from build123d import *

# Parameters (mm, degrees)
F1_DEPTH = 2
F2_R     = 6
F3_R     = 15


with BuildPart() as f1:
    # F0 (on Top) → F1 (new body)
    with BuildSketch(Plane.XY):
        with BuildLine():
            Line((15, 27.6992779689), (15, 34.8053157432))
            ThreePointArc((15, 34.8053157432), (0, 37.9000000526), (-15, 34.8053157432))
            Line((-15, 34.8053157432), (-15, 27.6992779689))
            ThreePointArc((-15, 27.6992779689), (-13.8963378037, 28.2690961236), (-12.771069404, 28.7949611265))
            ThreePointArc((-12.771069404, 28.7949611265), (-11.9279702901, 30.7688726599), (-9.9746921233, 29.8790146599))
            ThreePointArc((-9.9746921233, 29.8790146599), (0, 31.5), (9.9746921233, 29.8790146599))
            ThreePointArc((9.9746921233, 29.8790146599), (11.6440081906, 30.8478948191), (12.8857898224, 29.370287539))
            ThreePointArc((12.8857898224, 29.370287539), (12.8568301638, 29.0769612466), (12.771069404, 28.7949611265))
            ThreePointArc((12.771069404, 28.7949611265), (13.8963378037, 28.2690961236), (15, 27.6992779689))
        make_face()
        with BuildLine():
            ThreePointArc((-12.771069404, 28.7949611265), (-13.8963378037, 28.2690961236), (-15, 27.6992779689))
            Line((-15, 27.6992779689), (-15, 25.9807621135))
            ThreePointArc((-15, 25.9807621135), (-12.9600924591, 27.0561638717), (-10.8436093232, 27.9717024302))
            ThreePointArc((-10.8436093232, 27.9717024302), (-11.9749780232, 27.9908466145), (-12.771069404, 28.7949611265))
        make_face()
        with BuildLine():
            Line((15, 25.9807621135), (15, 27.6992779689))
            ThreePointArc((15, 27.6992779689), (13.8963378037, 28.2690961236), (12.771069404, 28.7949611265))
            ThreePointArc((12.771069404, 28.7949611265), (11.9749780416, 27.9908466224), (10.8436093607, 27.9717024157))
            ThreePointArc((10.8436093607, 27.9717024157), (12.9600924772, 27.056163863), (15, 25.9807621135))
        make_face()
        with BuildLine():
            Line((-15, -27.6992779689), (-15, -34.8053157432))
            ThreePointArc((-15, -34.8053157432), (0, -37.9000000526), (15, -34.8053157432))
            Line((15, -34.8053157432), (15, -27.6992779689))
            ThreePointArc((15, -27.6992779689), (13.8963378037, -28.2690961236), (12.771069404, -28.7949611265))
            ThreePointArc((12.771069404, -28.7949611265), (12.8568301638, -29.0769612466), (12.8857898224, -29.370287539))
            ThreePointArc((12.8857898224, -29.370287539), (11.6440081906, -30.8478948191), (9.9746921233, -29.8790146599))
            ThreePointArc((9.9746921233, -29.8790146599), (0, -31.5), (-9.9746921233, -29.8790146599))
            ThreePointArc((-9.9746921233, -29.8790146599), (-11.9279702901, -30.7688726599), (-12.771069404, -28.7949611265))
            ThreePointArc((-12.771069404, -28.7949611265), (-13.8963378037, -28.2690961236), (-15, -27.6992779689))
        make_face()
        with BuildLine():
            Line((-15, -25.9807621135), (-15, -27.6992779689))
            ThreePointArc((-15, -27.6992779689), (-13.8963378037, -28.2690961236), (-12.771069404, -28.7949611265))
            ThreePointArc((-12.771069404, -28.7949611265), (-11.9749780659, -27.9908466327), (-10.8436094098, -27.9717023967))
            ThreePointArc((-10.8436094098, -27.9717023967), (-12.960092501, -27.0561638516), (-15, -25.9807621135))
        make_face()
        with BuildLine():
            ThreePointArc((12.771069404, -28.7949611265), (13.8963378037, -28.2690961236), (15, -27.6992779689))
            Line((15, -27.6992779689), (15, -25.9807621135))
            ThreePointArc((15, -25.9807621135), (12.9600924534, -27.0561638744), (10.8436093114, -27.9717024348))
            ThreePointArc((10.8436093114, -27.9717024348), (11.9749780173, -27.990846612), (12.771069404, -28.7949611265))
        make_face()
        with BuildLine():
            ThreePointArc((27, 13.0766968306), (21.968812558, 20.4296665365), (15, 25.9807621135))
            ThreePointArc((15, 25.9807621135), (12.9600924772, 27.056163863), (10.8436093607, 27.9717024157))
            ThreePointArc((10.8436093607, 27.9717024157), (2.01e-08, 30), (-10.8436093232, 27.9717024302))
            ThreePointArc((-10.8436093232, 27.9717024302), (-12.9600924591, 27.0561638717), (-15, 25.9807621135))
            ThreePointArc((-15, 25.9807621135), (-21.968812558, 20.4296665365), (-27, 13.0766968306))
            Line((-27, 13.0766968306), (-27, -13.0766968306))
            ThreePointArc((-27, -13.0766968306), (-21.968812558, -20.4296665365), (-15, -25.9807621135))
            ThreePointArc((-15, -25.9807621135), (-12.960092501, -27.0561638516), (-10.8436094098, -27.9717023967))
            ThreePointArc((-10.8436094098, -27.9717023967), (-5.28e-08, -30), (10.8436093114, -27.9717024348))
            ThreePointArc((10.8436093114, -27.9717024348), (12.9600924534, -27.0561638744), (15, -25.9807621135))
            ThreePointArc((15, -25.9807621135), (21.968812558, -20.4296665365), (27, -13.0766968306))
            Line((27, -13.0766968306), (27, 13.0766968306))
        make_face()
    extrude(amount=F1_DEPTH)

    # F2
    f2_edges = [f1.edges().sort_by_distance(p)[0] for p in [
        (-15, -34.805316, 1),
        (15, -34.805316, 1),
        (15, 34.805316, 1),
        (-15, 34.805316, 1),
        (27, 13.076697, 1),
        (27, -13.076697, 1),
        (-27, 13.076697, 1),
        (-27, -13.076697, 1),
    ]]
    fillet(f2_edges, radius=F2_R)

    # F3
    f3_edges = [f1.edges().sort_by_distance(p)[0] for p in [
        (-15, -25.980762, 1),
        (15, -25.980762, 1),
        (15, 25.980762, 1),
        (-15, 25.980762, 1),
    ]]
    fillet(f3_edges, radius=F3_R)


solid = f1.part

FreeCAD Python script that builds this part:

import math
import FreeCAD as App
import Part
import Sketcher
from FreeCAD import Vector


def edges_at(feature, points):
    """Names of the edges that pass closest to the given points."""
    edges = feature.Shape.Edges
    near = lambda p: min(range(len(edges)), key=lambda i: edges[i].distToShape(Part.Vertex(*p))[0])
    return sorted({f"Edge{near(p) + 1}" for p in points})

doc = App.newDocument("Part")
body = doc.addObject("PartDesign::Body", "Body")

sketch1 = body.newObject("Sketcher::SketchObject", "Sketch")
sketch1.AttachmentSupport = (doc.getObject("XY_Plane"), [""])
sketch1.MapMode = "FlatFace"
sketch1.addGeometry([
    Part.ArcOfCircle(Part.Circle(Vector(0, 0, 0), Vector(0, 0, 1), 37.9), math.radians(67), math.radians(113)),
    Part.LineSegment(Vector(-15, 34.8, 0), Vector(-15, 26, 0)),
    Part.ArcOfCircle(Part.Circle(Vector(0, 0, 0), Vector(0, 0, 1), 30), math.radians(120), math.radians(154)),
    Part.LineSegment(Vector(-27, 13.1, 0), Vector(-27, -13.1, 0)),
    Part.ArcOfCircle(Part.Circle(Vector(0, 0, 0), Vector(0, 0, 1), 30), math.radians(-154), math.radians(-120)),
    Part.LineSegment(Vector(-15, -26, 0), Vector(-15, -34.8, 0)),
    Part.ArcOfCircle(Part.Circle(Vector(0, 0, 0), Vector(0, 0, 1), 37.9), math.radians(-113), math.radians(-67)),
    Part.LineSegment(Vector(15, -34.8, 0), Vector(15, -26, 0)),
    Part.ArcOfCircle(Part.Circle(Vector(0, 0, 0), Vector(0, 0, 1), 30), math.radians(-60), math.radians(-26)),
    Part.LineSegment(Vector(27, -13.1, 0), Vector(27, 13.1, 0)),
    Part.ArcOfCircle(Part.Circle(Vector(0, 0, 0), Vector(0, 0, 1), 30), math.radians(26), math.radians(60)),
    Part.LineSegment(Vector(15, 26, 0), Vector(15, 34.8, 0)),
    Part.ArcOfCircle(Part.Circle(Vector(-11.4, 29.4, 0), Vector(0, 0, 1), 1.5), math.radians(-157), math.radians(-69)),
    Part.ArcOfCircle(Part.Circle(Vector(-11.4, 29.4, 0), Vector(0, 0, 1), 1.5), math.radians(20), math.radians(203)),
    Part.ArcOfCircle(Part.Circle(Vector(0, 0, 0), Vector(0, 0, 1), 31.5), math.radians(72), math.radians(108)),
    Part.ArcOfCircle(Part.Circle(Vector(11.4, 29.4, 0), Vector(0, 0, 1), 1.5), math.radians(0), math.radians(160)),
    Part.ArcOfCircle(Part.Circle(Vector(11.4, 29.4, 0), Vector(0, 0, 1), 1.5), math.radians(-23), math.radians(0)),
    Part.ArcOfCircle(Part.Circle(Vector(11.4, 29.4, 0), Vector(0, 0, 1), 1.5), math.radians(-111), math.radians(-23)),
    Part.ArcOfCircle(Part.Circle(Vector(0, 0, 0), Vector(0, 0, 1), 30), math.radians(69), math.radians(111)),
    Part.ArcOfCircle(Part.Circle(Vector(0, 0, 0), Vector(0, 0, 1), 30), math.radians(-111), math.radians(-69)),
    Part.ArcOfCircle(Part.Circle(Vector(11.4, -29.4, 0), Vector(0, 0, 1), 1.5), math.radians(23), math.radians(111)),
    Part.ArcOfCircle(Part.Circle(Vector(11.4, -29.4, 0), Vector(0, 0, 1), 1.5), math.radians(0), math.radians(23)),
    Part.ArcOfCircle(Part.Circle(Vector(11.4, -29.4, 0), Vector(0, 0, 1), 1.5), math.radians(-160), math.radians(0)),
    Part.ArcOfCircle(Part.Circle(Vector(0, 0, 0), Vector(0, 0, 1), 31.5), math.radians(-108), math.radians(-72)),
    Part.ArcOfCircle(Part.Circle(Vector(-11.4, -29.4, 0), Vector(0, 0, 1), 1.5), math.radians(157), math.radians(340)),
    Part.ArcOfCircle(Part.Circle(Vector(-11.4, -29.4, 0), Vector(0, 0, 1), 1.5), math.radians(69), math.radians(157)),
], False)
sketch1.addConstraint([
    Sketcher.Constraint("Coincident", 0, 2, 1, 1),
    Sketcher.Constraint("Coincident", 1, 2, 2, 1),
    Sketcher.Constraint("Coincident", 2, 2, 3, 1),
    Sketcher.Constraint("Coincident", 3, 2, 4, 1),
    Sketcher.Constraint("Coincident", 4, 2, 5, 1),
    Sketcher.Constraint("Coincident", 5, 2, 6, 1),
    Sketcher.Constraint("Coincident", 6, 2, 7, 1),
    Sketcher.Constraint("Coincident", 7, 2, 8, 1),
    Sketcher.Constraint("Coincident", 8, 2, 9, 1),
    Sketcher.Constraint("Coincident", 9, 2, 10, 1),
    Sketcher.Constraint("Coincident", 10, 2, 11, 1),
    Sketcher.Constraint("Coincident", 11, 2, 0, 1),
    Sketcher.Constraint("Tangent", 12, 1, 13, 2),
    Sketcher.Constraint("Coincident", 13, 1, 14, 2),
    Sketcher.Constraint("Coincident", 14, 1, 15, 2),
    Sketcher.Constraint("Tangent", 15, 1, 16, 2),
    Sketcher.Constraint("Tangent", 16, 1, 17, 2),
    Sketcher.Constraint("Tangent", 17, 1, 18, 1),
    Sketcher.Constraint("Tangent", 18, 2, 12, 2),
    Sketcher.Constraint("Tangent", 19, 2, 20, 2),
    Sketcher.Constraint("Tangent", 20, 1, 21, 2),
    Sketcher.Constraint("Tangent", 21, 1, 22, 2),
    Sketcher.Constraint("Coincident", 22, 1, 23, 2),
    Sketcher.Constraint("Coincident", 23, 1, 24, 2),
    Sketcher.Constraint("Tangent", 24, 1, 25, 2),
    Sketcher.Constraint("Tangent", 25, 1, 19, 1),
    Sketcher.Constraint("Vertical", 1),
    Sketcher.Constraint("Vertical", 3),
    Sketcher.Constraint("Vertical", 5),
    Sketcher.Constraint("Vertical", 7),
    Sketcher.Constraint("Vertical", 9),
    Sketcher.Constraint("Vertical", 11),
    Sketcher.Constraint("Coincident", 0, 3, -1, 1),
    Sketcher.Constraint("Coincident", 2, 3, -1, 1),
    Sketcher.Constraint("Coincident", 4, 3, -1, 1),
    Sketcher.Constraint("Coincident", 6, 3, -1, 1),
    Sketcher.Constraint("Coincident", 8, 3, -1, 1),
    Sketcher.Constraint("Coincident", 10, 3, -1, 1),
    Sketcher.Constraint("Coincident", 14, 3, -1, 1),
    Sketcher.Constraint("Coincident", 18, 3, -1, 1),
    Sketcher.Constraint("Coincident", 19, 3, -1, 1),
    Sketcher.Constraint("Coincident", 23, 3, -1, 1),
    Sketcher.Constraint("Coincident", 17, 3, 15, 3),
    Sketcher.Constraint("Coincident", 22, 3, 20, 3),
    Sketcher.Constraint("Equal", 2, 4),
    Sketcher.Constraint("Equal", 0, 6),
    Sketcher.Constraint("Equal", 4, 8),
    Sketcher.Constraint("Equal", 8, 10),
    Sketcher.Constraint("Equal", 12, 13),
    Sketcher.Constraint("Equal", 13, 15),
    Sketcher.Constraint("Equal", 10, 18),
    Sketcher.Constraint("Equal", 18, 19),
    Sketcher.Constraint("Equal", 17, 20),
    Sketcher.Constraint("Equal", 14, 23),
    Sketcher.Constraint("Equal", 22, 24),
    Sketcher.Constraint("Equal", 24, 25),
    Sketcher.Constraint("Symmetric", 12, 1, 20, 1, -1, 1),
    Sketcher.Constraint("Symmetric", 16, 1, 24, 1, -1, 1),
    Sketcher.Constraint("Symmetric", 12, 1, 16, 1, -2),
    Sketcher.Constraint("Horizontal", 5, 2, 6, 2),
    Sketcher.Constraint("Horizontal", 3, 2, 8, 2),
    Sketcher.Constraint("Horizontal", 1, 2, 10, 2),
    Sketcher.Constraint("Horizontal", 17, 3, 15, 1),
    Sketcher.Constraint("Horizontal", 25, 3, 21, 1),
    Sketcher.Constraint("Vertical", 1, 2, 4, 2),
    Sketcher.Constraint("Radius", 2, 30.0),
    Sketcher.Constraint("Radius", 0, 37.9),
    Sketcher.Constraint("Radius", 12, 1.5),
    Sketcher.Constraint("Radius", 14, 31.5),
    Sketcher.Constraint("DistanceX", 0, 2, -1, 1, 15.0),
    Sketcher.Constraint("DistanceX", 2, 2, -1, 1, 27.0),
    Sketcher.Constraint("DistanceY", 1, 2, 12, 1, 2.814199),
    Sketcher.Constraint("DistanceY", 13, 1, 0, 2, 4.926301),
])
pad1 = body.newObject("PartDesign::Pad", "Pad")
pad1.Profile = sketch1
pad1.Length = 2
doc.recompute()

fillet = body.newObject("PartDesign::Fillet", "Fillet")
fillet.Base = (pad1, edges_at(pad1, [
    (-15, -34.805, 1),
    (15, -34.805, 1),
    (15, 34.805, 1),
    (-15, 34.805, 1),
    (27, 13.077, 1),
    (27, -13.077, 1),
    (-27, 13.077, 1),
    (-27, -13.077, 1),
]))
fillet.Radius = 6
doc.recompute()

fillet2 = body.newObject("PartDesign::Fillet", "Fillet001")
fillet2.Base = (fillet, edges_at(fillet, [
    (-15, -25.981, 1),
    (15, -25.981, 1),
    (15, 25.981, 1),
    (-15, 25.981, 1),
]))
fillet2.Radius = 15

doc.recompute()
